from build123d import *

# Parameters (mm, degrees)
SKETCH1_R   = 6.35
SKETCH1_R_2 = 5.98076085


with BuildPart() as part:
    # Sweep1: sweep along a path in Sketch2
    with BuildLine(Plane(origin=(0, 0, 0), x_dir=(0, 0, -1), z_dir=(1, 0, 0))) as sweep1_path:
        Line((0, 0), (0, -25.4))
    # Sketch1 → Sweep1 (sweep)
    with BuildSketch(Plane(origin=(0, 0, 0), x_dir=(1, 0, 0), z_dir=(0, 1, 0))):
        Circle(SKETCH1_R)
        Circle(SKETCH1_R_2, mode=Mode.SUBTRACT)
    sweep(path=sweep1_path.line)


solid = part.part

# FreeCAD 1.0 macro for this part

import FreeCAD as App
import Part
import Sketcher
from FreeCAD import Vector
Q = App.Units.Quantity

doc = App.newDocument("Part")
body = doc.addObject("PartDesign::Body", "Body")

# Sketch on XZ plane
sketch1 = body.newObject("Sketcher::SketchObject", "Sketch")
sketch1.AttachmentSupport = (doc.getObject("XZ_Plane"), [""])
sketch1.MapMode = "FlatFace"
sketch1.addGeometry(Part.Circle(Vector(0, 0, 0), Vector(0, 0, 1), 6), False)
sketch1.addGeometry(Part.Circle(Vector(0, 0, 0), Vector(0, 0, 1), 6), False)
sketch1.addConstraint(Sketcher.Constraint("Coincident", 0, 3, -1, 1))
sketch1.addConstraint(Sketcher.Constraint("Coincident", 1, 3, -1, 1))
sketch1.addConstraint(Sketcher.Constraint("Diameter", 0, Q("0.5 in")))
sketch1.addConstraint(Sketcher.Constraint("Diameter", 1, 11.961522))

# Sketch on XY plane
sketch2 = body.newObject("Sketcher::SketchObject", "Sketch001")
sketch2.AttachmentSupport = (doc.getObject("XY_Plane"), [""])
sketch2.MapMode = "FlatFace"
sketch2.addGeometry(Part.LineSegment(Vector(0, 0, 0), Vector(0, -25, 0)), False)
sketch2.addConstraint(Sketcher.Constraint("Vertical", 0))
sketch2.addConstraint(Sketcher.Constraint("Coincident", 0, 1, -1, 1))
sketch2.addConstraint(Sketcher.Constraint("DistanceY", 0, 2, 0, 1, Q("1 in")))
doc.recompute()

additivepipe = body.newObject("PartDesign::AdditivePipe", "AdditivePipe")
additivepipe.Profile = sketch1
additivepipe.Spine = (sketch2, ["Edge1"])

doc.recompute()
